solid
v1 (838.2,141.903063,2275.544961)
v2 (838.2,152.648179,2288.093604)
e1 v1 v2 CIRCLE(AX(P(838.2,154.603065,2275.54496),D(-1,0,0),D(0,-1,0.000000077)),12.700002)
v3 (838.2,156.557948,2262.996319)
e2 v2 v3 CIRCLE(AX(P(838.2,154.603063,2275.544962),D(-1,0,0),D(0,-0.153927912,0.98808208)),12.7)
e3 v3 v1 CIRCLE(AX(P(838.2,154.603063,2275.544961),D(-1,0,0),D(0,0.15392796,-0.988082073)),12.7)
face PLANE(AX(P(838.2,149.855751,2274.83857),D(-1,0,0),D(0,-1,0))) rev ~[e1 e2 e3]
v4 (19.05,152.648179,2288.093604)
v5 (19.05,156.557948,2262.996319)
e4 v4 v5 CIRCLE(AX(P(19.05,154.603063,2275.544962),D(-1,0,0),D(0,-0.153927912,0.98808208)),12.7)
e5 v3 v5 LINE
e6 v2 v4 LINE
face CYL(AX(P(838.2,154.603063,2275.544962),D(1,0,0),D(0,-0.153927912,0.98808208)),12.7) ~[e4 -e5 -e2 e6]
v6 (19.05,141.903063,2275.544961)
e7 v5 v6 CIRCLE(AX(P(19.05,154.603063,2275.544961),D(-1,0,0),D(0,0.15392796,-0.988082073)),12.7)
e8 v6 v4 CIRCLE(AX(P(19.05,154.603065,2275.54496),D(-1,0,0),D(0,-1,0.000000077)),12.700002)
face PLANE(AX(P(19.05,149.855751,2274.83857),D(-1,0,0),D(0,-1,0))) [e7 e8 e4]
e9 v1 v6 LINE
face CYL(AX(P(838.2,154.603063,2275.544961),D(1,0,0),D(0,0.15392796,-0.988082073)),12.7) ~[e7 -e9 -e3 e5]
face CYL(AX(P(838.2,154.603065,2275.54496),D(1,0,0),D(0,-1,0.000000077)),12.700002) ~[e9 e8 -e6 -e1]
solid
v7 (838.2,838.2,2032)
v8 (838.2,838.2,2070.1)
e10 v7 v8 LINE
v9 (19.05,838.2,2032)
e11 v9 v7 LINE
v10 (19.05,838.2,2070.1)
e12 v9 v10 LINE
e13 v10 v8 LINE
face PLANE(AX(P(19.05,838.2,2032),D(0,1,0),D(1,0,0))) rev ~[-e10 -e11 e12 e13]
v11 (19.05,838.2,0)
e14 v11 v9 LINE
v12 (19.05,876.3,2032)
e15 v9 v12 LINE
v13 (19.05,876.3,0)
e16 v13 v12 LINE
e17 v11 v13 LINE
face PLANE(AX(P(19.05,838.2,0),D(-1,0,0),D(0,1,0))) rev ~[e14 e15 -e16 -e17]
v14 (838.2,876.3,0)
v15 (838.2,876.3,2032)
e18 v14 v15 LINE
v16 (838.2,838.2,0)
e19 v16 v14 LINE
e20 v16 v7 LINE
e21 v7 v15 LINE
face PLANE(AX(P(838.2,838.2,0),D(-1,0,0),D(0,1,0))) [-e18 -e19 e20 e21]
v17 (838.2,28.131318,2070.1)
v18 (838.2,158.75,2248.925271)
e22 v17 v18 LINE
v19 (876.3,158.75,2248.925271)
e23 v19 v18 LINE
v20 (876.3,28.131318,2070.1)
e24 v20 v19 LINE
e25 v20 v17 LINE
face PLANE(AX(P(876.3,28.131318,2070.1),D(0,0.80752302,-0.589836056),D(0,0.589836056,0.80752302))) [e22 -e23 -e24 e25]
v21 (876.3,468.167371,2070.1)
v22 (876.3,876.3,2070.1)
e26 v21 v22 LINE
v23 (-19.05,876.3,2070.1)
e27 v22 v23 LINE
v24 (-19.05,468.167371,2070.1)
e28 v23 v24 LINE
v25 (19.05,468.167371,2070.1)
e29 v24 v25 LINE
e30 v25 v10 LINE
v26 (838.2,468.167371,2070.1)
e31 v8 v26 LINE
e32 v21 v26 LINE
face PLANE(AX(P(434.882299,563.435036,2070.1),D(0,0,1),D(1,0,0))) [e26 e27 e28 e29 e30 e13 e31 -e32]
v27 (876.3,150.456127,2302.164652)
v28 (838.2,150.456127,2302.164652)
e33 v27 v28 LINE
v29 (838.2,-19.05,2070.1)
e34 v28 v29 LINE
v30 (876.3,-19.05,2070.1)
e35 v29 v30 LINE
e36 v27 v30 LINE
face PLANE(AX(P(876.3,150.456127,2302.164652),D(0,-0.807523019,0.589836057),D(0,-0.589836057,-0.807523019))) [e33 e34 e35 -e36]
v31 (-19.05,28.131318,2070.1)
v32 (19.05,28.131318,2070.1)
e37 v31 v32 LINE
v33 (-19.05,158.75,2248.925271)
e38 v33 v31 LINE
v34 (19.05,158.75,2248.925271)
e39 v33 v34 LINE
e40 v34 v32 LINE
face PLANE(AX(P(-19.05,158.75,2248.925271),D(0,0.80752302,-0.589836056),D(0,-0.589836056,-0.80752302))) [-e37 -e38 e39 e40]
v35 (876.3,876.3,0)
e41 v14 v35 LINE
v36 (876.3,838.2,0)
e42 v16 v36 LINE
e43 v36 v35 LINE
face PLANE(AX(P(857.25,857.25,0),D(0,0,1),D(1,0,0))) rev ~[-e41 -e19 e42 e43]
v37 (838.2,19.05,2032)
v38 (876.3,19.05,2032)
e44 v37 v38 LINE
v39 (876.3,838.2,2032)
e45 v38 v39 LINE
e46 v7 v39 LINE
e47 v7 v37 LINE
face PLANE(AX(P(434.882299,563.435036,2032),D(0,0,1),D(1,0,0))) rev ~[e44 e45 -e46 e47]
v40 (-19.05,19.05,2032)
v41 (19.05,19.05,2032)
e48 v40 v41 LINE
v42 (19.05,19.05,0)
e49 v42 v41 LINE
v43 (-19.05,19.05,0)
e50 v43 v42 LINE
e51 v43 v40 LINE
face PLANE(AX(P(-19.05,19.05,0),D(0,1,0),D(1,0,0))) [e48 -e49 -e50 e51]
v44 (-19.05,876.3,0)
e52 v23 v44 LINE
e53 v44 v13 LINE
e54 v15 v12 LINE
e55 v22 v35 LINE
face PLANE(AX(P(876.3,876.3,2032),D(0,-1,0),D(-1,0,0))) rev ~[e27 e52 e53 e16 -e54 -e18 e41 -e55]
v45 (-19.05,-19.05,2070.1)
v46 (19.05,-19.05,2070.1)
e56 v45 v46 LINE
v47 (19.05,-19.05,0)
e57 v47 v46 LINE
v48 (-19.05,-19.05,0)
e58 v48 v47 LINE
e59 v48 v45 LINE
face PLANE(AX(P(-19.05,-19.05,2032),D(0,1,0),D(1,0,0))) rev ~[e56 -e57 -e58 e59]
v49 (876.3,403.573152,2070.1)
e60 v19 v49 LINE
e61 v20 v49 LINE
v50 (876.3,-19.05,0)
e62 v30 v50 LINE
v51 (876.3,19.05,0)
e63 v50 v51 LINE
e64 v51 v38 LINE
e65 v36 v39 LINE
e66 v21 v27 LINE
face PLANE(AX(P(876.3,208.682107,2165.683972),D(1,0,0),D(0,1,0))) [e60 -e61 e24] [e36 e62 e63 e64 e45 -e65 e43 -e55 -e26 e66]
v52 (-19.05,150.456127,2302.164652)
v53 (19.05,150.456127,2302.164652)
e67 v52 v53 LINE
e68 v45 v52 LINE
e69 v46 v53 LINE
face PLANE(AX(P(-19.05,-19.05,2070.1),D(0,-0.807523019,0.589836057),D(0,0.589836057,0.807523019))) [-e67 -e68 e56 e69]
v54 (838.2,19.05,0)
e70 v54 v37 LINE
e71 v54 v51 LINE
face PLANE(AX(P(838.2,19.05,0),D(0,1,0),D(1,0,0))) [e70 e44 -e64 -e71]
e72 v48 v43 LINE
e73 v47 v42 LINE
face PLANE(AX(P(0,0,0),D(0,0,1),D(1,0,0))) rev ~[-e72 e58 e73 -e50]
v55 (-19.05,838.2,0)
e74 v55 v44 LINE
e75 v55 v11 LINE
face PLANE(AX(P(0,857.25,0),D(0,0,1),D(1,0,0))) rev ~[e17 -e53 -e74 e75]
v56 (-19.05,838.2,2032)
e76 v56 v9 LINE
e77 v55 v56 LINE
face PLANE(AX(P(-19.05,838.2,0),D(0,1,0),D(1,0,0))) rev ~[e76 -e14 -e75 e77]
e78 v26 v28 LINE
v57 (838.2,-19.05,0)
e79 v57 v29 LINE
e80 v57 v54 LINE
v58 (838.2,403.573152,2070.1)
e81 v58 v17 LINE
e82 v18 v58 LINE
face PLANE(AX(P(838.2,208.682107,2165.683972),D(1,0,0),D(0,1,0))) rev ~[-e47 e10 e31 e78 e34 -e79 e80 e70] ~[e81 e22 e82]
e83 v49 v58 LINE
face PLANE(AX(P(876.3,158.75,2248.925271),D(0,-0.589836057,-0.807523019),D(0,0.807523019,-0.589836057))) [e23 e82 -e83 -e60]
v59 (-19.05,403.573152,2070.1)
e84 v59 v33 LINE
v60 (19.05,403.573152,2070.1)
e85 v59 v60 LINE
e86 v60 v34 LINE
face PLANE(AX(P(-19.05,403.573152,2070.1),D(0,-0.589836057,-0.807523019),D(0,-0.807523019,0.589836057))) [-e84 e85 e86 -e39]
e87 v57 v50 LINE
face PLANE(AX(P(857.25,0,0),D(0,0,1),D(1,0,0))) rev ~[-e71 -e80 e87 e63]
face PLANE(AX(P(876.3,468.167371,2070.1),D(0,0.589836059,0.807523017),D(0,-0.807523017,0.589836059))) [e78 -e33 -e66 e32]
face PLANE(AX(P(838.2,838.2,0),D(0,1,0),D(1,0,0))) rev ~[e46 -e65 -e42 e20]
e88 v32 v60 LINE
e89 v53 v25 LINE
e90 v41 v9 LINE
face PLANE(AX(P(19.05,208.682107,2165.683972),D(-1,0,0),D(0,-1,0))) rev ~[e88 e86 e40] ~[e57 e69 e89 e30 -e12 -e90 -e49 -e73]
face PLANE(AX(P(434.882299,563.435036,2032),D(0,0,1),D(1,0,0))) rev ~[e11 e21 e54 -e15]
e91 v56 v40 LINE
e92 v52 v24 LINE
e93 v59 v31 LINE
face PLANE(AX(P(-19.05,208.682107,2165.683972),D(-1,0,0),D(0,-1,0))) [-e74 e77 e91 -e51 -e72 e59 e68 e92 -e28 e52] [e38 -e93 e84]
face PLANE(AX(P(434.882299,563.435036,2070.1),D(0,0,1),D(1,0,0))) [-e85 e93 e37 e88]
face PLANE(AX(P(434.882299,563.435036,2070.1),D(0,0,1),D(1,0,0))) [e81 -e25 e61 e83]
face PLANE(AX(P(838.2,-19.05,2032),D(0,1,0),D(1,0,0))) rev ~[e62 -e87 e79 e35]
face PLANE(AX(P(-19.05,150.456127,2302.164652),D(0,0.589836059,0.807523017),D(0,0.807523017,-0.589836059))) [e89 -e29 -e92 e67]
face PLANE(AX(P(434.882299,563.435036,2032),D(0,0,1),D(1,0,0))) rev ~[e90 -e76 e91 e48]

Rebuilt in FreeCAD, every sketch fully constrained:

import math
import FreeCAD as App
import Part
import Sketcher
from FreeCAD import Vector
Q = App.Units.Quantity


def add_polygon(sketch, points):
    """Adds a closed chain of lines whose ends are joined by coincident constraints."""
    first, n = sketch.GeometryCount, len(points)
    for a, b in zip(points, points[1:] + points[:1]):
        sketch.addGeometry(Part.LineSegment(App.Vector(*a, 0), App.Vector(*b, 0)), False)
    for i in range(n):
        sketch.addConstraint(Sketcher.Constraint("Coincident", first + i, 2, first + (i + 1) % n, 1))

doc = App.newDocument("Part")
params = doc.addObject("Spreadsheet::Sheet", "Params")
for row, (alias, value) in enumerate([
    ("sketch1_width", "1.5 in"),
    ("pad1_length", "80 in"),
    ("sketch2_width", "1.5 in"),
    ("sketch2_width2", "32.25 in"),
    ("sketch2_height", "33.75 in"),
    ("pad2_length", "1.5 in"),
    ("pad3_length", "1.5 in"),
    ("pad4_length", "1.5 in"),
    ("sketch5_radius", "0.5 in"),
    ("pad5_length", "32.25 in"),
], start=1):
    params.set(f"A{row}", alias)
    params.set(f"B{row}", "=" + value)
    params.setAlias(f"B{row}", alias)

body = doc.addObject("PartDesign::Body", "Body")
body.AllowCompound = True

# Sketch on XY plane
sketch1 = body.newObject("Sketcher::SketchObject", "Sketch")
sketch1.AttachmentSupport = (doc.getObject("XY_Plane"), [""])
sketch1.MapMode = "FlatFace"
add_polygon(sketch1, [(-19, 876), (-19, 838), (19, 838), (19, 876)])  # lines 0-3
add_polygon(sketch1, [(838, 876), (838, 838), (876, 838), (876, 876)])  # lines 4-7
add_polygon(sketch1, [(-19, 19), (-19, -19), (19, -19), (19, 19)])  # lines 8-11
add_polygon(sketch1, [(838, 19), (838, -19), (876, -19), (876, 19)])  # lines 12-15
sketch1.addConstraint([
    Sketcher.Constraint("Vertical", 0),
    Sketcher.Constraint("Horizontal", 1),
    Sketcher.Constraint("Vertical", 2),
    Sketcher.Constraint("Horizontal", 3),
    Sketcher.Constraint("Vertical", 4),
    Sketcher.Constraint("Horizontal", 5),
    Sketcher.Constraint("Vertical", 6),
    Sketcher.Constraint("Horizontal", 7),
    Sketcher.Constraint("Vertical", 8),
    Sketcher.Constraint("Horizontal", 9),
    Sketcher.Constraint("Vertical", 10),
    Sketcher.Constraint("Horizontal", 11),
    Sketcher.Constraint("Vertical", 12),
    Sketcher.Constraint("Horizontal", 13),
    Sketcher.Constraint("Vertical", 14),
    Sketcher.Constraint("Horizontal", 15),
    Sketcher.Constraint("Symmetric", 8, 2, 10, 2, -1, 1),
    Sketcher.Constraint("Horizontal", 1, 2, 4, 2),
    Sketcher.Constraint("Horizontal", 3, 2, 6, 2),
    Sketcher.Constraint("Horizontal", 9, 2, 12, 2),
    Sketcher.Constraint("Horizontal", 11, 2, 14, 2),
    Sketcher.Constraint("Vertical", 3, 2, 8, 2),
    Sketcher.Constraint("Vertical", 2, 2, 9, 2),
    Sketcher.Constraint("Vertical", 7, 2, 12, 2),
    Sketcher.Constraint("Vertical", 6, 2, 13, 2),
    Sketcher.Constraint("Equal", 3, 5),
    Sketcher.Constraint("Equal", 15, 0),
    Sketcher.Constraint("Equal", 6, 8),
    Sketcher.Constraint("DistanceX", 1, 1, 1, 2, Q("1.5 in")),
    Sketcher.Constraint("DistanceY", -1, 1, 0, 2, Q("33 in")),
    Sketcher.Constraint("DistanceX", -1, 1, 4, 2, Q("33 in")),
])
sketch1.setExpression("Constraints[44]", "Params.sketch1_width")
pad1 = body.newObject("PartDesign::Pad", "Pad")
pad1.Profile = sketch1
pad1.setExpression("Length", "Params.pad1_length")

# Sketch on XY plane
sketch2 = body.newObject("Sketcher::SketchObject", "Sketch001")
sketch2.AttachmentSupport = (doc.getObject("XY_Plane"), [""])
sketch2.MapMode = "FlatFace"
sketch2.AttachmentOffset = App.Placement(Vector(0, 0, 80 * 25.4), App.Rotation())
add_polygon(sketch2, [(-19, 876), (-19, -19), (19, -19), (19, 838), (838, 838), (838, -19), (876, -19), (876, 876)])  # lines 0-7
sketch2.addConstraint([
    Sketcher.Constraint("Vertical", 0),
    Sketcher.Constraint("Horizontal", 1),
    Sketcher.Constraint("Vertical", 2),
    Sketcher.Constraint("Horizontal", 3),
    Sketcher.Constraint("Vertical", 4),
    Sketcher.Constraint("Horizontal", 5),
    Sketcher.Constraint("Vertical", 6),
    Sketcher.Constraint("Horizontal", 7),
    Sketcher.Constraint("Horizontal", 1, 2, 4, 2),
    Sketcher.Constraint("Equal", 1, 5),
    Sketcher.Constraint("Equal", 7, 0),
    Sketcher.Constraint("DistanceX", 1, 1, 1, 2, Q("1.5 in")),
    Sketcher.Constraint("DistanceY", -1, 1, 2, 2, Q("33 in")),
    Sketcher.Constraint("DistanceX", -1, 1, 3, 2, Q("33 in")),
    Sketcher.Constraint("DistanceX", 3, 1, 3, 2, Q("32.25 in")),
    Sketcher.Constraint("DistanceY", 2, 1, 2, 2, Q("33.75 in")),
])
sketch2.setExpression("Constraints[19]", "Params.sketch2_width")
sketch2.setExpression("Constraints[22]", "Params.sketch2_width2")
sketch2.setExpression("Constraints[23]", "Params.sketch2_height")
pad2 = body.newObject("PartDesign::Pad", "Pad001")
pad2.Profile = sketch2
pad2.setExpression("Length", "Params.pad2_length")

# Sketch on YZ plane
sketch3 = body.newObject("Sketcher::SketchObject", "Sketch002")
sketch3.AttachmentSupport = (doc.getObject("YZ_Plane"), [""])
sketch3.MapMode = "FlatFace"
sketch3.AttachmentOffset = App.Placement(Vector(0, 0, -0.75 * 25.4), App.Rotation())
add_polygon(sketch3, [(28, 2070), (-19, 2070), (150, 2302), (468, 2070), (404, 2070), (159, 2249)])  # lines 0-5
sketch3.addConstraint([
    Sketcher.Constraint("Horizontal", 0),
    Sketcher.Constraint("Horizontal", 3),
    Sketcher.Constraint("Perpendicular", 1, 2),
    Sketcher.Constraint("Parallel", 2, 4),
    Sketcher.Constraint("Perpendicular", 4, 5),
    Sketcher.Constraint("Horizontal", 0, 2, 2, 2),
    Sketcher.Constraint("DistanceX", 0, 2, 4, 2, Q("7 in")),
    Sketcher.Constraint("DistanceY", -1, 1, 0, 2, Q("81.5 in")),
    Sketcher.Constraint("DistanceX", 0, 2, -1, 1, Q("0.75 in")),
    Sketcher.Constraint("DistanceX", 0, 2, 0, 1, 47.181318),
    Sketcher.Constraint("DistanceX", 3, 2, 3, 1, 64.594219),
    Sketcher.Constraint("Distance", 5, 221.449131),
])
pad3 = body.newObject("PartDesign::Pad", "Pad002")
pad3.Profile = sketch3
pad3.setExpression("Length", "Params.pad3_length")

# Sketch on YZ plane
sketch4 = body.newObject("Sketcher::SketchObject", "Sketch003")
sketch4.AttachmentSupport = (doc.getObject("YZ_Plane"), [""])
sketch4.MapMode = "FlatFace"
sketch4.AttachmentOffset = App.Placement(Vector(0, 0, 34.5 * 25.4), App.Rotation())
add_polygon(sketch4, [(468, 2070), (150, 2302), (-19, 2070), (28, 2070), (159, 2249), (404, 2070)])  # lines 0-5
sketch4.addConstraint([
    Sketcher.Constraint("Horizontal", 2),
    Sketcher.Constraint("Horizontal", 5),
    Sketcher.Constraint("Perpendicular", 0, 1),
    Sketcher.Constraint("Parallel", 1, 3),
    Sketcher.Constraint("Perpendicular", 3, 4),
    Sketcher.Constraint("Horizontal", 2, 2, 4, 2),
    Sketcher.Constraint("DistanceX", 1, 2, 3, 2, Q("7 in")),
    Sketcher.Constraint("DistanceY", -1, 1, 1, 2, Q("81.5 in")),
    Sketcher.Constraint("DistanceX", 1, 2, -1, 1, Q("0.75 in")),
    Sketcher.Constraint("DistanceX", 2, 1, 2, 2, 47.181318),
    Sketcher.Constraint("DistanceX", 5, 1, 5, 2, 64.594219),
    Sketcher.Constraint("Distance", 3, 221.449131),
])
pad4 = body.newObject("PartDesign::Pad", "Pad003")
pad4.Profile = sketch4
pad4.setExpression("Length", "Params.pad4_length")
pad4.Reversed = True
body2 = doc.addObject("PartDesign::Body", "Body001")

# Sketch on YZ plane
sketch5 = body2.newObject("Sketcher::SketchObject", "Sketch004")
sketch5.AttachmentSupport = (doc.getObject("YZ_Plane001"), [""])
sketch5.MapMode = "FlatFace"
sketch5.AttachmentOffset = App.Placement(Vector(0, 0, 33 * 25.4), App.Rotation())
sketch5.addGeometry([
    Part.ArcOfCircle(Part.Circle(Vector(155, 2276, 0), Vector(0, 0, 1), 13), math.radians(-180), math.radians(-81)),
    Part.ArcOfCircle(Part.Circle(Vector(155, 2276, 0), Vector(0, 0, 1), 13), math.radians(99), math.radians(180)),
    Part.ArcOfCircle(Part.Circle(Vector(155, 2276, 0), Vector(0, 0, 1), 13), math.radians(-81), math.radians(99)),
], False)
sketch5.addConstraint([
    Sketcher.Constraint("Tangent", 0, 1, 1, 2),
    Sketcher.Constraint("Tangent", 1, 1, 2, 2),
    Sketcher.Constraint("Tangent", 2, 1, 0, 2),
    Sketcher.Constraint("Horizontal", 2, 3, 0, 1),
    Sketcher.Constraint("Radius", 0, Q("0.5 in")),
    Sketcher.Constraint("DistanceY", -1, 1, 0, 3, 2275.544961),
    Sketcher.Constraint("DistanceX", -1, 1, 1, 1, 152.648179),
    Sketcher.Constraint("DistanceX", -1, 1, 2, 1, 156.557948),
    Sketcher.Constraint("DistanceY", -1, 1, 2, 1, 2262.996319),
])
sketch5.setExpression("Constraints[4]", "Params.sketch5_radius")
pad5 = body2.newObject("PartDesign::Pad", "Pad004")
pad5.Profile = sketch5
pad5.setExpression("Length", "Params.pad5_length")
pad5.Reversed = True

doc.recompute()
